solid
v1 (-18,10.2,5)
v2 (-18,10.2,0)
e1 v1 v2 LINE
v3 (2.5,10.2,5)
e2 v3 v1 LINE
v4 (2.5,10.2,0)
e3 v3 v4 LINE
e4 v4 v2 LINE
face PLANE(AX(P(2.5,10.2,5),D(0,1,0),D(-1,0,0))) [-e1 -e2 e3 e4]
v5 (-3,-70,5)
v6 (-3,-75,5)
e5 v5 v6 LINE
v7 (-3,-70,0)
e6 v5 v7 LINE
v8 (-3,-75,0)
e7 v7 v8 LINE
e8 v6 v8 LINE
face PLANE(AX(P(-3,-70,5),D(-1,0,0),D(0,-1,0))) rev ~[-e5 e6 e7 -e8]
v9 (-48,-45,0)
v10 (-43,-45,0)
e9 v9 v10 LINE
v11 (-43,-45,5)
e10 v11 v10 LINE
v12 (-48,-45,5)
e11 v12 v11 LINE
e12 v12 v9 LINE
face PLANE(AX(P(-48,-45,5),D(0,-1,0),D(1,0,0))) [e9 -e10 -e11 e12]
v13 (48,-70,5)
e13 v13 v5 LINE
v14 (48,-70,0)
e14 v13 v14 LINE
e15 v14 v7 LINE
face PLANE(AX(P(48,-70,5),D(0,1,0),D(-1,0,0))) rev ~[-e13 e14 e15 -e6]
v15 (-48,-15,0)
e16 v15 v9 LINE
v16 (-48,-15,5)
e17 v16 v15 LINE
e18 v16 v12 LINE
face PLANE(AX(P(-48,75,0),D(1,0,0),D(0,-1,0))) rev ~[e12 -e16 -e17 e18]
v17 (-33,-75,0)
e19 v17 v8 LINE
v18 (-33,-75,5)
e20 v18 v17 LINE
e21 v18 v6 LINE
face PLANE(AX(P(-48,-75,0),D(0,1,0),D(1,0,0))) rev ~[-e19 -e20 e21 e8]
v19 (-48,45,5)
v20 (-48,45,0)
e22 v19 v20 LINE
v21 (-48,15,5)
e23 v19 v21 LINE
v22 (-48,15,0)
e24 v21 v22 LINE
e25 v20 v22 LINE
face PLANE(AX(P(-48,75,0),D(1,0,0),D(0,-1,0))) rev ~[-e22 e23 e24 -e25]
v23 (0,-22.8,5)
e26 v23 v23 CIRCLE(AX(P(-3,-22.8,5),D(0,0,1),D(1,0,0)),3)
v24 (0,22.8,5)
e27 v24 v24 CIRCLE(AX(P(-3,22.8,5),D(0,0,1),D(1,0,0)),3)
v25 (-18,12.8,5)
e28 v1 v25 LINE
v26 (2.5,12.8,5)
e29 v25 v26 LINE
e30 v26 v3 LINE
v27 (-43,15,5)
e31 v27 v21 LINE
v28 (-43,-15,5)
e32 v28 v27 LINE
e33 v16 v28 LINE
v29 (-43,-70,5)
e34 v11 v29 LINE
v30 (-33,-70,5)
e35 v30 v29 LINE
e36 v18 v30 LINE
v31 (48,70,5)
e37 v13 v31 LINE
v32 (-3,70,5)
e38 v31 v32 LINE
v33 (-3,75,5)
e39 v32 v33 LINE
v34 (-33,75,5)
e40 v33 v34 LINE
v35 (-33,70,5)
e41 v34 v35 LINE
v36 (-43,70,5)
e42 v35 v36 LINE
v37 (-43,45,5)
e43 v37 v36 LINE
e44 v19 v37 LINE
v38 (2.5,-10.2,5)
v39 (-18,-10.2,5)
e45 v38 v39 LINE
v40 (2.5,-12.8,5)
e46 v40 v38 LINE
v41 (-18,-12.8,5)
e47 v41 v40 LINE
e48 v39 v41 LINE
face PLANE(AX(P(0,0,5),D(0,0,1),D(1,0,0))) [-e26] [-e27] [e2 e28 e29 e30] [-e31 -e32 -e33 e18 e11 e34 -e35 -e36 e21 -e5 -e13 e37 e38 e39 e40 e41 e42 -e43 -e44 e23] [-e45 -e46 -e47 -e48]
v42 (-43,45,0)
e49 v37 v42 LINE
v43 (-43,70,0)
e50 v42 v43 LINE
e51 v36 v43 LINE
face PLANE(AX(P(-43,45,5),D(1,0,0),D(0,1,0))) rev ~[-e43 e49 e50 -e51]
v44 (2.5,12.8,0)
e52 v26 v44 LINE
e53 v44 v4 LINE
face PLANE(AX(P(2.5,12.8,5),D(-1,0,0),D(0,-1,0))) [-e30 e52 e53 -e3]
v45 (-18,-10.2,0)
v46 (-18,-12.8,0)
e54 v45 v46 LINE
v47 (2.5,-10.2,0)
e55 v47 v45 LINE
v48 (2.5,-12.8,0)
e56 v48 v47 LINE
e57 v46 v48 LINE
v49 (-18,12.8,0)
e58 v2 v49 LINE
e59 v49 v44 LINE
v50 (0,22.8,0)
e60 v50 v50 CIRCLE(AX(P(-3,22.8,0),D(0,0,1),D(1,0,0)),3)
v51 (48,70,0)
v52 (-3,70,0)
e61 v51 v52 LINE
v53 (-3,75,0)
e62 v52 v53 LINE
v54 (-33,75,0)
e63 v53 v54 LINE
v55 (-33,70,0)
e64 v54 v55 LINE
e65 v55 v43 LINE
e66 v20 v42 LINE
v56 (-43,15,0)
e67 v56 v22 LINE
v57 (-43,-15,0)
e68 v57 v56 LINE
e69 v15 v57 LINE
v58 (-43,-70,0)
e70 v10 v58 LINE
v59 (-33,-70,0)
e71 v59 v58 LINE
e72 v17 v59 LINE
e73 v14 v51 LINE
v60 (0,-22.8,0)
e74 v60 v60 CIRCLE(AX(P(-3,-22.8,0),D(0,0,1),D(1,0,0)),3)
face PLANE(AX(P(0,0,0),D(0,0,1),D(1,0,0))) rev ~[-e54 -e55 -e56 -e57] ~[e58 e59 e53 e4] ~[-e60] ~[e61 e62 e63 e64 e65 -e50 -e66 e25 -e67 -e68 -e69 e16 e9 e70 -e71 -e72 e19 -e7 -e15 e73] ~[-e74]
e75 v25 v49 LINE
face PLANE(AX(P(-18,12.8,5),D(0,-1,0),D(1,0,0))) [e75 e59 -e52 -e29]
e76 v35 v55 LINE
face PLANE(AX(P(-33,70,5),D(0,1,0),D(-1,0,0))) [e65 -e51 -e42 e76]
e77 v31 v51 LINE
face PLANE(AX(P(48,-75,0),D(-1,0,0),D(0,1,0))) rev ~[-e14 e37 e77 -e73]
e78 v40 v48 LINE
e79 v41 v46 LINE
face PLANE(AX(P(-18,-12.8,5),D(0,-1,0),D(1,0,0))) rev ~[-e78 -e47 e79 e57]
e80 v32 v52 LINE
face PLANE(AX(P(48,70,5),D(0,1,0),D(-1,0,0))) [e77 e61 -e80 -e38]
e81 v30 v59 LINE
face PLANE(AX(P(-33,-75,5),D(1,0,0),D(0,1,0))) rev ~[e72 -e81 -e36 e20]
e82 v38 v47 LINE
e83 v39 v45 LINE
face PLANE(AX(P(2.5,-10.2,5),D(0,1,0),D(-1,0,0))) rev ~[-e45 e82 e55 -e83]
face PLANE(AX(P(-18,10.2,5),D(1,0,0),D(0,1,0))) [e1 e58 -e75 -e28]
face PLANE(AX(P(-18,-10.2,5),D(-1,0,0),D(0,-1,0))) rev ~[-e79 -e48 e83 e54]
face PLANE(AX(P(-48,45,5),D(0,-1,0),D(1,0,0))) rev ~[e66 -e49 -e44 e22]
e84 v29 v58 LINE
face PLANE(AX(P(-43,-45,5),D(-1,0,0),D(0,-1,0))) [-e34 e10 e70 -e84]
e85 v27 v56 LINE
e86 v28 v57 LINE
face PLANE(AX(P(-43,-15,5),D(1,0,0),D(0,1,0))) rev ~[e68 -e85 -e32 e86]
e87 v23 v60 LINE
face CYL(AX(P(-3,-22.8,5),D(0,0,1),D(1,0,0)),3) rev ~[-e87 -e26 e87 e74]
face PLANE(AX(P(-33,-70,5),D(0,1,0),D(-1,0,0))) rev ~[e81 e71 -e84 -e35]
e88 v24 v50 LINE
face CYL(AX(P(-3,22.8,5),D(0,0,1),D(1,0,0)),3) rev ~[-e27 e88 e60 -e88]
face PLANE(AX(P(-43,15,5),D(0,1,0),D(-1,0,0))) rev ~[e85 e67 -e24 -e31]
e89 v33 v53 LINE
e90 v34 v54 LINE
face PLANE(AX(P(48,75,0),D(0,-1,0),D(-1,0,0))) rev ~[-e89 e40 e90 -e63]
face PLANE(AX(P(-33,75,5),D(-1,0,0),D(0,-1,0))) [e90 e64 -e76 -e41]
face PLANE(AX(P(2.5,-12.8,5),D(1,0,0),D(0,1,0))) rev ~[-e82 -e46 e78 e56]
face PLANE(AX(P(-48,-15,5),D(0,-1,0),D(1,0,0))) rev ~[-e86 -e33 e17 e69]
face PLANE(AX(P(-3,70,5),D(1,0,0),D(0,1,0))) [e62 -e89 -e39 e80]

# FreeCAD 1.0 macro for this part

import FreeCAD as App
import Part
import Sketcher


def add_polygon(sketch, points):
    """Adds a closed chain of lines whose ends are joined by coincident constraints."""
    first, n = sketch.GeometryCount, len(points)
    for a, b in zip(points, points[1:] + points[:1]):
        sketch.addGeometry(Part.LineSegment(App.Vector(*a, 0), App.Vector(*b, 0)), False)
    for i in range(n):
        sketch.addConstraint(Sketcher.Constraint("Coincident", first + i, 2, first + (i + 1) % n, 1))

doc = App.newDocument("Part")
body = doc.addObject("PartDesign::Body", "Body")

sketch1 = body.newObject("Sketcher::SketchObject", "Sketch")
sketch1.AttachmentSupport = (doc.getObject("XY_Plane"), [""])
sketch1.MapMode = "FlatFace"
add_polygon(sketch1, [(-48, 75), (-48, -75), (48, -75), (48, 75)])
sketch1.addConstraint(Sketcher.Constraint("Vertical", 0))
sketch1.addConstraint(Sketcher.Constraint("Horizontal", 1))
sketch1.addConstraint(Sketcher.Constraint("Vertical", 2))
sketch1.addConstraint(Sketcher.Constraint("Horizontal", 3))
sketch1.addConstraint(Sketcher.Constraint("Symmetric", 0, 2, 2, 2, -1, 1))
sketch1.addConstraint(Sketcher.Constraint("DistanceX", 1, 1, 1, 2, 96.0))
sketch1.addConstraint(Sketcher.Constraint("DistanceY", 0, 2, 0, 1, 150.0))
pad1 = body.newObject("PartDesign::Pad", "Pad")
pad1.Profile = sketch1
pad1.Length = 5

sketch2 = body.newObject("Sketcher::SketchObject", "Sketch001")
sketch2.AttachmentSupport = (doc.getObject("XY_Plane"), [""])
sketch2.MapMode = "FlatFace"
sketch2.AttachmentOffset = App.Placement(App.Vector(0, 0, 5), App.Rotation())
add_polygon(sketch2, [(-48, 75), (-48, 45), (-43, 45), (-43, 70), (-33, 70), (-33, 75)])
add_polygon(sketch2, [(-43, 15), (-48, 15), (-48, -15), (-43, -15)])
add_polygon(sketch2, [(48, 75), (-3, 75), (-3, 70), (48, 70)])
add_polygon(sketch2, [(-43, -45), (-48, -45), (-48, -75), (-33, -75), (-33, -70), (-43, -70)])
add_polygon(sketch2, [(48, -75), (48, -70), (-3, -70), (-3, -75)])
sketch2.addConstraint(Sketcher.Constraint("Vertical", 0))
sketch2.addConstraint(Sketcher.Constraint("Horizontal", 1))
sketch2.addConstraint(Sketcher.Constraint("Vertical", 2))
sketch2.addConstraint(Sketcher.Constraint("Horizontal", 3))
sketch2.addConstraint(Sketcher.Constraint("Vertical", 4))
sketch2.addConstraint(Sketcher.Constraint("Horizontal", 5))
sketch2.addConstraint(Sketcher.Constraint("Horizontal", 6))
sketch2.addConstraint(Sketcher.Constraint("Vertical", 7))
sketch2.addConstraint(Sketcher.Constraint("Horizontal", 8))
sketch2.addConstraint(Sketcher.Constraint("Vertical", 9))
sketch2.addConstraint(Sketcher.Constraint("Horizontal", 10))
sketch2.addConstraint(Sketcher.Constraint("Vertical", 11))
sketch2.addConstraint(Sketcher.Constraint("Horizontal", 12))
sketch2.addConstraint(Sketcher.Constraint("Vertical", 13))
sketch2.addConstraint(Sketcher.Constraint("Horizontal", 14))
sketch2.addConstraint(Sketcher.Constraint("Vertical", 15))
sketch2.addConstraint(Sketcher.Constraint("Horizontal", 16))
sketch2.addConstraint(Sketcher.Constraint("Vertical", 17))
sketch2.addConstraint(Sketcher.Constraint("Horizontal", 18))
sketch2.addConstraint(Sketcher.Constraint("Vertical", 19))
sketch2.addConstraint(Sketcher.Constraint("Vertical", 20))
sketch2.addConstraint(Sketcher.Constraint("Horizontal", 21))
sketch2.addConstraint(Sketcher.Constraint("Vertical", 22))
sketch2.addConstraint(Sketcher.Constraint("Horizontal", 23))
sketch2.addConstraint(Sketcher.Constraint("Symmetric", 13, 2, 15, 2, -1, 1))
sketch2.addConstraint(Sketcher.Constraint("Symmetric", 5, 2, 23, 2, -1, 1))
sketch2.addConstraint(Sketcher.Constraint("Symmetric", 5, 2, 13, 2, -2))
sketch2.addConstraint(Sketcher.Constraint("Symmetric", 3, 2, 17, 2, -1))
sketch2.addConstraint(Sketcher.Constraint("Symmetric", 1, 2, 19, 2, -1))
sketch2.addConstraint(Sketcher.Constraint("Symmetric", 11, 2, 21, 2, -1))
sketch2.addConstraint(Sketcher.Constraint("Horizontal", 3, 2, 11, 2))
sketch2.addConstraint(Sketcher.Constraint("Vertical", 5, 2, 6, 2))
sketch2.addConstraint(Sketcher.Constraint("Vertical", 2, 2, 8, 2))
sketch2.addConstraint(Sketcher.Constraint("Equal", 14, 4))
sketch2.addConstraint(Sketcher.Constraint("Equal", 0, 7))
sketch2.addConstraint(Sketcher.Constraint("DistanceX", 1, 1, 1, 2, 5.0))
sketch2.addConstraint(Sketcher.Constraint("DistanceX", 5, 2, 5, 1, 15.0))
sketch2.addConstraint(Sketcher.Constraint("DistanceX", 10, 2, 10, 1, 51.0))
sketch2.addConstraint(Sketcher.Constraint("DistanceY", 0, 2, 0, 1, 30.0))
sketch2.addConstraint(Sketcher.Constraint("DistanceY", -1, 1, 6, 2, 15.0))
sketch2.addConstraint(Sketcher.Constraint("DistanceY", 6, 2, 0, 2, 30.0))
sketch2.addConstraint(Sketcher.Constraint("DistanceX", 4, 2, 10, 2, 30.0))
pocket1 = body.newObject("PartDesign::Pocket", "Pocket")
pocket1.Profile = sketch2
pocket1.Length = 8

sketch3 = body.newObject("Sketcher::SketchObject", "Sketch002")
sketch3.AttachmentSupport = (doc.getObject("XY_Plane"), [""])
sketch3.MapMode = "FlatFace"
sketch3.AttachmentOffset = App.Placement(App.Vector(0, 0, 5), App.Rotation())
add_polygon(sketch3, [(2.5, -10.2), (-18, -10.2), (-18, -12.8), (2.5, -12.8)])
add_polygon(sketch3, [(-18, 12.8), (-18, 10.2), (2.5, 10.2), (2.5, 12.8)])
sketch3.addGeometry(Part.Circle(App.Vector(-3, -22.8, 0), App.Vector(0, 0, 1), 3), False)
sketch3.addGeometry(Part.Circle(App.Vector(-3, 22.8, 0), App.Vector(0, 0, 1), 3), False)
sketch3.addConstraint(Sketcher.Constraint("Horizontal", 0))
sketch3.addConstraint(Sketcher.Constraint("Vertical", 1))
sketch3.addConstraint(Sketcher.Constraint("Horizontal", 2))
sketch3.addConstraint(Sketcher.Constraint("Vertical", 3))
sketch3.addConstraint(Sketcher.Constraint("Vertical", 4))
sketch3.addConstraint(Sketcher.Constraint("Horizontal", 5))
sketch3.addConstraint(Sketcher.Constraint("Vertical", 6))
sketch3.addConstraint(Sketcher.Constraint("Horizontal", 7))
sketch3.addConstraint(Sketcher.Constraint("Equal", 8, 9))
sketch3.addConstraint(Sketcher.Constraint("Symmetric", 8, 3, 9, 3, -1))
sketch3.addConstraint(Sketcher.Constraint("Symmetric", 0, 2, 4, 2, -1))
sketch3.addConstraint(Sketcher.Constraint("Symmetric", 2, 2, 6, 2, -1))
sketch3.addConstraint(Sketcher.Constraint("Diameter", 8, 6.0))
sketch3.addConstraint(Sketcher.Constraint("DistanceX", 0, 2, 0, 1, 20.5))
sketch3.addConstraint(Sketcher.Constraint("DistanceY", 1, 2, 1, 1, 2.6))
sketch3.addConstraint(Sketcher.Constraint("DistanceX", 0, 2, 8, 3, 15.0))
sketch3.addConstraint(Sketcher.Constraint("DistanceY", 8, 3, 1, 2, 10.0))
sketch3.addConstraint(Sketcher.Constraint("DistanceY", 1, 2, -1, 1, 12.8))
sketch3.addConstraint(Sketcher.Constraint("DistanceX", 8, 3, -1, 1, 3.0))
pocket2 = body.newObject("PartDesign::Pocket", "Pocket001")
pocket2.Profile = sketch3
pocket2.Length = 10

doc.recompute()
